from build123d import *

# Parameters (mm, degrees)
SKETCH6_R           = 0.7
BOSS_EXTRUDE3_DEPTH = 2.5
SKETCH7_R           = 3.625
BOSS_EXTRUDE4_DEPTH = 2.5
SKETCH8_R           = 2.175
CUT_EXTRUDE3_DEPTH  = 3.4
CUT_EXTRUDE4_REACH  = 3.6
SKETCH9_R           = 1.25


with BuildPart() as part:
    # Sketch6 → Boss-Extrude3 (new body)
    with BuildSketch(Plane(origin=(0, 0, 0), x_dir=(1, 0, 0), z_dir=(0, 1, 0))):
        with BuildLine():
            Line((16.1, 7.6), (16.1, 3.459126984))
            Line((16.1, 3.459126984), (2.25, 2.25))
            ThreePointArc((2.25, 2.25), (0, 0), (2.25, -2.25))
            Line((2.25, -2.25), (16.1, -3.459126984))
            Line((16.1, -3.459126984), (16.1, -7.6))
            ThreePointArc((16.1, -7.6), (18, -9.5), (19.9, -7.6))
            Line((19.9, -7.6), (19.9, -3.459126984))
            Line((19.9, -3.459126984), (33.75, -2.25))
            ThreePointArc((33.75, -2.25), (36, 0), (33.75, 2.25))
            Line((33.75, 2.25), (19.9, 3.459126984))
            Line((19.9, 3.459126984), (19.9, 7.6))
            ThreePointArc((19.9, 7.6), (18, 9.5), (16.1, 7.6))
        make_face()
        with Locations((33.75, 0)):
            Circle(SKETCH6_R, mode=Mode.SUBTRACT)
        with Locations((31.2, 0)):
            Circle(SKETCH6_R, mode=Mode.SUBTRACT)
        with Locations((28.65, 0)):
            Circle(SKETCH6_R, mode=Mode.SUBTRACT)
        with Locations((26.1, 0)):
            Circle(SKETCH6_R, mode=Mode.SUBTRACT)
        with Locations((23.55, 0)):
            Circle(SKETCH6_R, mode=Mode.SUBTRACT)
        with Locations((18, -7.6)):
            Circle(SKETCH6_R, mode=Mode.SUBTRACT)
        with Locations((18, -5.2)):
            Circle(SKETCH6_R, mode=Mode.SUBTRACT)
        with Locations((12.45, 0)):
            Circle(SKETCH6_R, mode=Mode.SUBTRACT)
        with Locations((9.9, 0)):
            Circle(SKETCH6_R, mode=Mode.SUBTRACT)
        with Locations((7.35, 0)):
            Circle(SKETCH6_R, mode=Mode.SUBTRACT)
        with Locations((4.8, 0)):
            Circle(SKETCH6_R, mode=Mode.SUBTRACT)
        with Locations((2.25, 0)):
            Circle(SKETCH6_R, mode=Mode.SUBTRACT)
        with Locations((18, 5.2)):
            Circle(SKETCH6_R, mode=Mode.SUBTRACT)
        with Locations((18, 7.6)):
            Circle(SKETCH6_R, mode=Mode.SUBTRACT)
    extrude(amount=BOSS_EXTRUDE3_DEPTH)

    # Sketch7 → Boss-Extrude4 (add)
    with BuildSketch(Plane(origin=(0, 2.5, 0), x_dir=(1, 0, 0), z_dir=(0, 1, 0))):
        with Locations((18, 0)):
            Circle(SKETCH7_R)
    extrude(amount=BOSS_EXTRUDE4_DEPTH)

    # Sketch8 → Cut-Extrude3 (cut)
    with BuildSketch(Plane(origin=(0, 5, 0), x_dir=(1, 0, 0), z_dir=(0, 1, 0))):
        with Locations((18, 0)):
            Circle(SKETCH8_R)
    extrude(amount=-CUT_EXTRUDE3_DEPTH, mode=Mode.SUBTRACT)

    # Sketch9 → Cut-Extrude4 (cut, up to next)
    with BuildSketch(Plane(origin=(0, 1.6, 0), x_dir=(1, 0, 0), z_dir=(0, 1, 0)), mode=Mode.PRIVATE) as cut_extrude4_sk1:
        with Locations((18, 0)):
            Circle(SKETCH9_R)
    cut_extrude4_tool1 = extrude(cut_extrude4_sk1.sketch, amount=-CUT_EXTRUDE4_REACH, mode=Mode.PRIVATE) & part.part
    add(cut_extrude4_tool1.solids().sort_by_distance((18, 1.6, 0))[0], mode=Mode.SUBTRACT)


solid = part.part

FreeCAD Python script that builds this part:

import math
import FreeCAD as App
import Part
import Sketcher
from FreeCAD import Vector

doc = App.newDocument("Part")
body = doc.addObject("PartDesign::Body", "Body")

sketch1 = doc.addObject("Sketcher::SketchObject", "Sketch")
body.addObject(sketch1)
sketch1.AttachmentSupport = (doc.XZ_Plane, [""])
sketch1.MapMode = "FlatFace"
sketch1.addGeometry([
    Part.LineSegment(Vector(16.1, -7.6, 0), Vector(16.1, -3.5, 0)),
    Part.LineSegment(Vector(16.1, -3.5, 0), Vector(2.2, -2.2, 0)),
    Part.ArcOfCircle(Part.Circle(Vector(2.2, 0, 0), Vector(0, 0, 1), 2.2), math.radians(90), math.radians(270)),
    Part.LineSegment(Vector(2.2, 2.2, 0), Vector(16.1, 3.5, 0)),
    Part.LineSegment(Vector(16.1, 3.5, 0), Vector(16.1, 7.6, 0)),
    Part.ArcOfCircle(Part.Circle(Vector(18, 7.6, 0), Vector(0, 0, 1), 1.9), math.radians(0), math.radians(180)),
    Part.LineSegment(Vector(19.9, 7.6, 0), Vector(19.9, 3.5, 0)),
    Part.LineSegment(Vector(19.9, 3.5, 0), Vector(33.8, 2.2, 0)),
    Part.ArcOfCircle(Part.Circle(Vector(33.8, 0, 0), Vector(0, 0, 1), 2.2), math.radians(-90), math.radians(90)),
    Part.LineSegment(Vector(33.8, -2.2, 0), Vector(19.9, -3.5, 0)),
    Part.LineSegment(Vector(19.9, -3.5, 0), Vector(19.9, -7.6, 0)),
    Part.ArcOfCircle(Part.Circle(Vector(18, -7.6, 0), Vector(0, 0, 1), 1.9), math.radians(180), math.radians(360)),
    Part.Circle(Vector(18, 7.6, 0), Vector(0, 0, 1), 0.7),
    Part.Circle(Vector(18, 5.2, 0), Vector(0, 0, 1), 0.7),
    Part.Circle(Vector(2.2, 0, 0), Vector(0, 0, 1), 0.7),
    Part.Circle(Vector(4.8, 0, 0), Vector(0, 0, 1), 0.7),
    Part.Circle(Vector(7.3, 0, 0), Vector(0, 0, 1), 0.7),
    Part.Circle(Vector(9.9, 0, 0), Vector(0, 0, 1), 0.7),
    Part.Circle(Vector(12.4, 0, 0), Vector(0, 0, 1), 0.7),
    Part.Circle(Vector(18, -5.2, 0), Vector(0, 0, 1), 0.7),
    Part.Circle(Vector(18, -7.6, 0), Vector(0, 0, 1), 0.7),
    Part.Circle(Vector(23.6, 0, 0), Vector(0, 0, 1), 0.7),
    Part.Circle(Vector(26.1, 0, 0), Vector(0, 0, 1), 0.7),
    Part.Circle(Vector(28.6, 0, 0), Vector(0, 0, 1), 0.7),
    Part.Circle(Vector(31.2, 0, 0), Vector(0, 0, 1), 0.7),
    Part.Circle(Vector(33.8, 0, 0), Vector(0, 0, 1), 0.7),
], False)
sketch1.addConstraint([
    Sketcher.Constraint("Coincident", 0, 2, 1, 1),
    Sketcher.Constraint("Coincident", 1, 2, 2, 2),
    Sketcher.Constraint("Coincident", 2, 1, 3, 1),
    Sketcher.Constraint("Coincident", 3, 2, 4, 1),
    Sketcher.Constraint("Tangent", 4, 2, 5, 2),
    Sketcher.Constraint("Tangent", 5, 1, 6, 1),
    Sketcher.Constraint("Coincident", 6, 2, 7, 1),
    Sketcher.Constraint("Coincident", 7, 2, 8, 2),
    Sketcher.Constraint("Coincident", 8, 1, 9, 1),
    Sketcher.Constraint("Coincident", 9, 2, 10, 1),
    Sketcher.Constraint("Tangent", 10, 2, 11, 2),
    Sketcher.Constraint("Tangent", 11, 1, 0, 1),
    Sketcher.Constraint("Vertical", 0),
    Sketcher.Constraint("Vertical", 4),
    Sketcher.Constraint("Vertical", 6),
    Sketcher.Constraint("Vertical", 10),
    Sketcher.Constraint("Coincident", 12, 3, 5, 3),
    Sketcher.Constraint("Coincident", 14, 3, 2, 3),
    Sketcher.Constraint("Coincident", 20, 3, 11, 3),
    Sketcher.Constraint("Coincident", 25, 3, 8, 3),
    Sketcher.Constraint("Equal", 2, 8),
    Sketcher.Constraint("Equal", 5, 11),
    Sketcher.Constraint("Equal", 12, 13),
    Sketcher.Constraint("Equal", 13, 14),
    Sketcher.Constraint("Equal", 14, 15),
    Sketcher.Constraint("Equal", 15, 16),
    Sketcher.Constraint("Equal", 16, 17),
    Sketcher.Constraint("Equal", 17, 18),
    Sketcher.Constraint("Equal", 18, 19),
    Sketcher.Constraint("Equal", 19, 20),
    Sketcher.Constraint("Equal", 20, 21),
    Sketcher.Constraint("Equal", 21, 22),
    Sketcher.Constraint("Equal", 22, 23),
    Sketcher.Constraint("Equal", 23, 24),
    Sketcher.Constraint("Equal", 24, 25),
    Sketcher.Constraint("Symmetric", 5, 3, 11, 3, -1),
    Sketcher.Constraint("Symmetric", 13, 3, 19, 3, -1),
    Sketcher.Constraint("Symmetric", 1, 2, 2, 1, -1),
    Sketcher.Constraint("Symmetric", 7, 2, 8, 1, -1),
    Sketcher.Constraint("PointOnObject", 15, 3, -1),
    Sketcher.Constraint("PointOnObject", 16, 3, -1),
    Sketcher.Constraint("PointOnObject", 17, 3, -1),
    Sketcher.Constraint("PointOnObject", 18, 3, -1),
    Sketcher.Constraint("PointOnObject", 21, 3, -1),
    Sketcher.Constraint("PointOnObject", 22, 3, -1),
    Sketcher.Constraint("PointOnObject", 23, 3, -1),
    Sketcher.Constraint("PointOnObject", 24, 3, -1),
    Sketcher.Constraint("Parallel", 1, 7),
    Sketcher.Constraint("Parallel", 3, 9),
    Sketcher.Constraint("Horizontal", 3, 2, 6, 2),
    Sketcher.Constraint("Horizontal", 0, 2, 9, 2),
    Sketcher.Constraint("Vertical", 12, 3, 13, 3),
    Sketcher.Constraint("Vertical", 14, 3, 1, 2),
    Sketcher.Constraint("Vertical", 25, 3, 7, 2),
    Sketcher.Constraint("Diameter", 12, 1.4),
    Sketcher.Constraint("Radius", 5, 1.9),
    Sketcher.Constraint("Radius", 2, 2.25),
    Sketcher.Constraint("DistanceX", -1, 1, 5, 3, 18.0),
    Sketcher.Constraint("DistanceY", -1, 1, 5, 3, 7.6),
    Sketcher.Constraint("DistanceY", -1, 1, 13, 3, 5.2),
    Sketcher.Constraint("DistanceX", -1, 1, 15, 3, 4.8),
    Sketcher.Constraint("DistanceX", -1, 1, 17, 3, 9.9),
    Sketcher.Constraint("DistanceX", -1, 1, 22, 3, 26.1),
    Sketcher.Constraint("DistanceX", -1, 1, 24, 3, 31.2),
    Sketcher.Constraint("DistanceX", 2, 3, 8, 3, 31.5),
    Sketcher.Constraint("DistanceX", 2, 3, 16, 3, 5.1),
    Sketcher.Constraint("DistanceX", 16, 3, 18, 3, 5.1),
    Sketcher.Constraint("DistanceX", 21, 3, 23, 3, 5.1),
    Sketcher.Constraint("DistanceX", 23, 3, 8, 3, 5.1),
    Sketcher.Constraint("Distance", 1, 13.902679),
])
pad1 = doc.addObject("PartDesign::Pad", "Pad")
body.addObject(pad1)
pad1.Profile = sketch1
pad1.Length = 2.5
pad1.Reversed = True

sketch2 = doc.addObject("Sketcher::SketchObject", "Sketch001")
body.addObject(sketch2)
sketch2.AttachmentSupport = (doc.XZ_Plane, [""])
sketch2.MapMode = "FlatFace"
sketch2.AttachmentOffset = App.Placement(Vector(0, 0, -2.5), App.Rotation())
sketch2.addGeometry(Part.Circle(Vector(18, 0, 0), Vector(0, 0, 1), 3.6), False)
sketch2.addConstraint([
    Sketcher.Constraint("PointOnObject", 0, 3, -1),
    Sketcher.Constraint("Diameter", 0, 7.25),
    Sketcher.Constraint("DistanceX", -1, 1, 0, 3, 18.0),
])
pad2 = doc.addObject("PartDesign::Pad", "Pad001")
body.addObject(pad2)
pad2.Profile = sketch2
pad2.Length = 2.5
pad2.Reversed = True

sketch3 = doc.addObject("Sketcher::SketchObject", "Sketch002")
body.addObject(sketch3)
sketch3.AttachmentSupport = (doc.XZ_Plane, [""])
sketch3.MapMode = "FlatFace"
sketch3.AttachmentOffset = App.Placement(Vector(0, 0, -5), App.Rotation())
sketch3.addGeometry(Part.Circle(Vector(18, 0, 0), Vector(0, 0, 1), 2.2), False)
sketch3.addConstraint([
    Sketcher.Constraint("PointOnObject", 0, 3, -1),
    Sketcher.Constraint("Diameter", 0, 4.35),
    Sketcher.Constraint("DistanceX", -1, 1, 0, 3, 18.0),
])
pocket1 = doc.addObject("PartDesign::Pocket", "Pocket")
body.addObject(pocket1)
pocket1.Profile = sketch3
pocket1.Length = 3.4
pocket1.Reversed = True

sketch4 = doc.addObject("Sketcher::SketchObject", "Sketch003")
body.addObject(sketch4)
sketch4.AttachmentSupport = (doc.XZ_Plane, [""])
sketch4.MapMode = "FlatFace"
sketch4.AttachmentOffset = App.Placement(Vector(0, 0, -1.6), App.Rotation())
sketch4.addGeometry(Part.Circle(Vector(18, 0, 0), Vector(0, 0, 1), 1.2), False)
sketch4.addConstraint([
    Sketcher.Constraint("PointOnObject", 0, 3, -1),
    Sketcher.Constraint("Diameter", 0, 2.5),
    Sketcher.Constraint("DistanceX", -1, 1, 0, 3, 18.0),
])
pocket2 = doc.addObject("PartDesign::Pocket", "Pocket001")
body.addObject(pocket2)
pocket2.Profile = sketch4
pocket2.Type = "UpToFirst"
pocket2.Reversed = True

doc.recompute()
